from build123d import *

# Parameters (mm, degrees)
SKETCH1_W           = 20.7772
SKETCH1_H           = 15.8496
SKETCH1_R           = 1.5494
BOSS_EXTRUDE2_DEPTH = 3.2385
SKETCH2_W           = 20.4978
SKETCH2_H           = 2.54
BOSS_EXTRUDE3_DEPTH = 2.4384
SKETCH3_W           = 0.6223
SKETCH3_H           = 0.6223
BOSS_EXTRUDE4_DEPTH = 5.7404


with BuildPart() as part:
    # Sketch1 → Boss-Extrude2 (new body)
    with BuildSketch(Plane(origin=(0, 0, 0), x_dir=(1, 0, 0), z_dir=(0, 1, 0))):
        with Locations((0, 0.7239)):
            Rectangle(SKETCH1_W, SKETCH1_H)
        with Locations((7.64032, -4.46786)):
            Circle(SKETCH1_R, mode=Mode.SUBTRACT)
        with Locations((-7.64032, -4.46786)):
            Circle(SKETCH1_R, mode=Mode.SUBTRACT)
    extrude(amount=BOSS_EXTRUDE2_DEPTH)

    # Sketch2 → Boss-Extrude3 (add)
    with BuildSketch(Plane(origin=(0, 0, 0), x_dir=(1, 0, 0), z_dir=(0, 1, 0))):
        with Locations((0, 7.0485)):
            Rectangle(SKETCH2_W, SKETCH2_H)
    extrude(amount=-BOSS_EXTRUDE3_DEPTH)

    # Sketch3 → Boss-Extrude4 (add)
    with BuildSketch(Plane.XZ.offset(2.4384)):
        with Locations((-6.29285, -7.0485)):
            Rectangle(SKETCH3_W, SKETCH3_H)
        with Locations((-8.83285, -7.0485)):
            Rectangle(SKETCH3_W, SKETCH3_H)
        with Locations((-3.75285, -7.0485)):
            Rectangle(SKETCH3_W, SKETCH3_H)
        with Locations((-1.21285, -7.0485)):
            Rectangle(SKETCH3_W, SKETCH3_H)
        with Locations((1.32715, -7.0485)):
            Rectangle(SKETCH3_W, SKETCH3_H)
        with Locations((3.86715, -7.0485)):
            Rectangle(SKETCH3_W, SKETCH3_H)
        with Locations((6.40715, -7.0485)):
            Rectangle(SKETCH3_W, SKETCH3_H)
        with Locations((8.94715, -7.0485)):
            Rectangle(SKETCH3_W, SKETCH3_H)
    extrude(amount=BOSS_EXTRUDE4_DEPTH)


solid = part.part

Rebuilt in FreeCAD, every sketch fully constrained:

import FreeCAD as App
import Part
import Sketcher
from FreeCAD import Vector
Q = App.Units.Quantity

doc = App.newDocument("Part")
body = doc.addObject("PartDesign::Body", "Body")

# Sketch on XZ plane
sketch1 = doc.addObject("Sketcher::SketchObject", "Sketch")
body.addObject(sketch1)
sketch1.AttachmentSupport = (doc.XZ_Plane, [""])
sketch1.MapMode = "FlatFace"
sketch1.addGeometry(Part.LineSegment(Vector(-10.4, -8.6, 0), Vector(-10.4, 7.2, 0)), False)
sketch1.addGeometry(Part.LineSegment(Vector(-10.4, 7.2, 0), Vector(10.4, 7.2, 0)), False)
sketch1.addGeometry(Part.LineSegment(Vector(10.4, 7.2, 0), Vector(10.4, -8.6, 0)), False)
sketch1.addGeometry(Part.LineSegment(Vector(10.4, -8.6, 0), Vector(-10.4, -8.6, 0)), False)
sketch1.addGeometry(Part.Circle(Vector(-7.6, 4.5, 0), Vector(0, 0, 1), 1.5), False)
sketch1.addGeometry(Part.Circle(Vector(7.6, 4.5, 0), Vector(0, 0, 1), 1.5), False)
sketch1.addConstraint(Sketcher.Constraint("Coincident", 0, 2, 1, 1))
sketch1.addConstraint(Sketcher.Constraint("Coincident", 1, 2, 2, 1))
sketch1.addConstraint(Sketcher.Constraint("Coincident", 2, 2, 3, 1))
sketch1.addConstraint(Sketcher.Constraint("Coincident", 3, 2, 0, 1))
sketch1.addConstraint(Sketcher.Constraint("Vertical", 0))
sketch1.addConstraint(Sketcher.Constraint("Horizontal", 1))
sketch1.addConstraint(Sketcher.Constraint("Vertical", 2))
sketch1.addConstraint(Sketcher.Constraint("Horizontal", 3))
sketch1.addConstraint(Sketcher.Constraint("Equal", 4, 5))
sketch1.addConstraint(Sketcher.Constraint("Symmetric", 4, 3, 5, 3, -2))
sketch1.addConstraint(Sketcher.Constraint("Diameter", 4, Q("0.122 in")))
sketch1.addConstraint(Sketcher.Constraint("DistanceX", 1, 1, 1, 2, Q("0.818 in")))
sketch1.addConstraint(Sketcher.Constraint("DistanceY", 0, 1, 0, 2, Q("0.624 in")))
sketch1.addConstraint(Sketcher.Constraint("DistanceX", 0, 2, -1, 1, Q("0.409 in")))
sketch1.addConstraint(Sketcher.Constraint("DistanceX", 4, 3, -1, 1, Q("0.3008 in")))
sketch1.addConstraint(Sketcher.Constraint("DistanceY", -1, 1, 4, 3, Q("0.1759 in")))
sketch1.addConstraint(Sketcher.Constraint("DistanceY", -1, 1, 0, 2, Q("0.2835 in")))
pad1 = doc.addObject("PartDesign::Pad", "Pad")
body.addObject(pad1)
pad1.Profile = sketch1
pad1.Length = Q("0.1275 in")
pad1.Reversed = True

# Sketch on XZ plane
sketch2 = doc.addObject("Sketcher::SketchObject", "Sketch001")
body.addObject(sketch2)
sketch2.AttachmentSupport = (doc.XZ_Plane, [""])
sketch2.MapMode = "FlatFace"
sketch2.addGeometry(Part.LineSegment(Vector(-10.2, -8.3, 0), Vector(-10.2, -5.8, 0)), False)
sketch2.addGeometry(Part.LineSegment(Vector(-10.2, -5.8, 0), Vector(10.2, -5.8, 0)), False)
sketch2.addGeometry(Part.LineSegment(Vector(10.2, -5.8, 0), Vector(10.2, -8.3, 0)), False)
sketch2.addGeometry(Part.LineSegment(Vector(10.2, -8.3, 0), Vector(-10.2, -8.3, 0)), False)
sketch2.addConstraint(Sketcher.Constraint("Coincident", 0, 2, 1, 1))
sketch2.addConstraint(Sketcher.Constraint("Coincident", 1, 2, 2, 1))
sketch2.addConstraint(Sketcher.Constraint("Coincident", 2, 2, 3, 1))
sketch2.addConstraint(Sketcher.Constraint("Coincident", 3, 2, 0, 1))
sketch2.addConstraint(Sketcher.Constraint("Vertical", 0))
sketch2.addConstraint(Sketcher.Constraint("Horizontal", 1))
sketch2.addConstraint(Sketcher.Constraint("Vertical", 2))
sketch2.addConstraint(Sketcher.Constraint("Horizontal", 3))
sketch2.addConstraint(Sketcher.Constraint("DistanceY", 0, 1, 0, 2, Q("0.1 in")))
sketch2.addConstraint(Sketcher.Constraint("DistanceX", 1, 1, 1, 2, Q("0.807 in")))
sketch2.addConstraint(Sketcher.Constraint("DistanceX", 0, 2, -1, 1, Q("0.4035 in")))
sketch2.addConstraint(Sketcher.Constraint("DistanceY", 0, 2, -1, 1, Q("0.2275 in")))
pad2 = doc.addObject("PartDesign::Pad", "Pad001")
body.addObject(pad2)
pad2.Profile = sketch2
pad2.Length = Q("0.096 in")

# Sketch on XZ plane
sketch3 = doc.addObject("Sketcher::SketchObject", "Sketch002")
body.addObject(sketch3)
sketch3.AttachmentSupport = (doc.XZ_Plane, [""])
sketch3.MapMode = "FlatFace"
sketch3.AttachmentOffset = App.Placement(Vector(0, 0, 0.096 * 25.4), App.Rotation())
sketch3.addGeometry(Part.LineSegment(Vector(-6.6, -6.7, 0), Vector(-6.6, -7.4, 0)), False)
sketch3.addGeometry(Part.LineSegment(Vector(-6.6, -7.4, 0), Vector(-6, -7.4, 0)), False)
sketch3.addGeometry(Part.LineSegment(Vector(-6, -7.4, 0), Vector(-6, -6.7, 0)), False)
sketch3.addGeometry(Part.LineSegment(Vector(-6, -6.7, 0), Vector(-6.6, -6.7, 0)), False)
sketch3.addGeometry(Part.LineSegment(Vector(-9.1, -6.7, 0), Vector(-9.1, -7.4, 0)), False)
sketch3.addGeometry(Part.LineSegment(Vector(-9.1, -7.4, 0), Vector(-8.5, -7.4, 0)), False)
sketch3.addGeometry(Part.LineSegment(Vector(-8.5, -7.4, 0), Vector(-8.5, -6.7, 0)), False)
sketch3.addGeometry(Part.LineSegment(Vector(-8.5, -6.7, 0), Vector(-9.1, -6.7, 0)), False)
sketch3.addGeometry(Part.LineSegment(Vector(-4.1, -6.7, 0), Vector(-4.1, -7.4, 0)), False)
sketch3.addGeometry(Part.LineSegment(Vector(-4.1, -7.4, 0), Vector(-3.4, -7.4, 0)), False)
sketch3.addGeometry(Part.LineSegment(Vector(-3.4, -7.4, 0), Vector(-3.4, -6.7, 0)), False)
sketch3.addGeometry(Part.LineSegment(Vector(-3.4, -6.7, 0), Vector(-4.1, -6.7, 0)), False)
sketch3.addGeometry(Part.LineSegment(Vector(-1.5, -6.7, 0), Vector(-1.5, -7.4, 0)), False)
sketch3.addGeometry(Part.LineSegment(Vector(-1.5, -7.4, 0), Vector(-0.9, -7.4, 0)), False)
sketch3.addGeometry(Part.LineSegment(Vector(-0.9, -7.4, 0), Vector(-0.9, -6.7, 0)), False)
sketch3.addGeometry(Part.LineSegment(Vector(-0.9, -6.7, 0), Vector(-1.5, -6.7, 0)), False)
sketch3.addGeometry(Part.LineSegment(Vector(1, -6.7, 0), Vector(1, -7.4, 0)), False)
sketch3.addGeometry(Part.LineSegment(Vector(1, -7.4, 0), Vector(1.6, -7.4, 0)), False)
sketch3.addGeometry(Part.LineSegment(Vector(1.6, -7.4, 0), Vector(1.6, -6.7, 0)), False)
sketch3.addGeometry(Part.LineSegment(Vector(1.6, -6.7, 0), Vector(1, -6.7, 0)), False)
sketch3.addGeometry(Part.LineSegment(Vector(3.6, -6.7, 0), Vector(3.6, -7.4, 0)), False)
sketch3.addGeometry(Part.LineSegment(Vector(3.6, -7.4, 0), Vector(4.2, -7.4, 0)), False)
sketch3.addGeometry(Part.LineSegment(Vector(4.2, -7.4, 0), Vector(4.2, -6.7, 0)), False)
sketch3.addGeometry(Part.LineSegment(Vector(4.2, -6.7, 0), Vector(3.6, -6.7, 0)), False)
sketch3.addGeometry(Part.LineSegment(Vector(6.1, -6.7, 0), Vector(6.1, -7.4, 0)), False)
sketch3.addGeometry(Part.LineSegment(Vector(6.1, -7.4, 0), Vector(6.7, -7.4, 0)), False)
sketch3.addGeometry(Part.LineSegment(Vector(6.7, -7.4, 0), Vector(6.7, -6.7, 0)), False)
sketch3.addGeometry(Part.LineSegment(Vector(6.7, -6.7, 0), Vector(6.1, -6.7, 0)), False)
sketch3.addGeometry(Part.LineSegment(Vector(8.6, -6.7, 0), Vector(8.6, -7.4, 0)), False)
sketch3.addGeometry(Part.LineSegment(Vector(8.6, -7.4, 0), Vector(9.3, -7.4, 0)), False)
sketch3.addGeometry(Part.LineSegment(Vector(9.3, -7.4, 0), Vector(9.3, -6.7, 0)), False)
sketch3.addGeometry(Part.LineSegment(Vector(9.3, -6.7, 0), Vector(8.6, -6.7, 0)), False)
sketch3.addConstraint(Sketcher.Constraint("Coincident", 0, 2, 1, 1))
sketch3.addConstraint(Sketcher.Constraint("Coincident", 1, 2, 2, 1))
sketch3.addConstraint(Sketcher.Constraint("Coincident", 2, 2, 3, 1))
sketch3.addConstraint(Sketcher.Constraint("Coincident", 3, 2, 0, 1))
sketch3.addConstraint(Sketcher.Constraint("Coincident", 4, 2, 5, 1))
sketch3.addConstraint(Sketcher.Constraint("Coincident", 5, 2, 6, 1))
sketch3.addConstraint(Sketcher.Constraint("Coincident", 6, 2, 7, 1))
sketch3.addConstraint(Sketcher.Constraint("Coincident", 7, 2, 4, 1))
sketch3.addConstraint(Sketcher.Constraint("Coincident", 8, 2, 9, 1))
sketch3.addConstraint(Sketcher.Constraint("Coincident", 9, 2, 10, 1))
sketch3.addConstraint(Sketcher.Constraint("Coincident", 10, 2, 11, 1))
sketch3.addConstraint(Sketcher.Constraint("Coincident", 11, 2, 8, 1))
sketch3.addConstraint(Sketcher.Constraint("Coincident", 12, 2, 13, 1))
sketch3.addConstraint(Sketcher.Constraint("Coincident", 13, 2, 14, 1))
sketch3.addConstraint(Sketcher.Constraint("Coincident", 14, 2, 15, 1))
sketch3.addConstraint(Sketcher.Constraint("Coincident", 15, 2, 12, 1))
sketch3.addConstraint(Sketcher.Constraint("Coincident", 16, 2, 17, 1))
sketch3.addConstraint(Sketcher.Constraint("Coincident", 17, 2, 18, 1))
sketch3.addConstraint(Sketcher.Constraint("Coincident", 18, 2, 19, 1))
sketch3.addConstraint(Sketcher.Constraint("Coincident", 19, 2, 16, 1))
sketch3.addConstraint(Sketcher.Constraint("Coincident", 20, 2, 21, 1))
sketch3.addConstraint(Sketcher.Constraint("Coincident", 21, 2, 22, 1))
sketch3.addConstraint(Sketcher.Constraint("Coincident", 22, 2, 23, 1))
sketch3.addConstraint(Sketcher.Constraint("Coincident", 23, 2, 20, 1))
sketch3.addConstraint(Sketcher.Constraint("Coincident", 24, 2, 25, 1))
sketch3.addConstraint(Sketcher.Constraint("Coincident", 25, 2, 26, 1))
sketch3.addConstraint(Sketcher.Constraint("Coincident", 26, 2, 27, 1))
sketch3.addConstraint(Sketcher.Constraint("Coincident", 27, 2, 24, 1))
sketch3.addConstraint(Sketcher.Constraint("Coincident", 28, 2, 29, 1))
sketch3.addConstraint(Sketcher.Constraint("Coincident", 29, 2, 30, 1))
sketch3.addConstraint(Sketcher.Constraint("Coincident", 30, 2, 31, 1))
sketch3.addConstraint(Sketcher.Constraint("Coincident", 31, 2, 28, 1))
sketch3.addConstraint(Sketcher.Constraint("Vertical", 0))
sketch3.addConstraint(Sketcher.Constraint("Horizontal", 1))
sketch3.addConstraint(Sketcher.Constraint("Vertical", 2))
sketch3.addConstraint(Sketcher.Constraint("Horizontal", 3))
sketch3.addConstraint(Sketcher.Constraint("Vertical", 4))
sketch3.addConstraint(Sketcher.Constraint("Horizontal", 5))
sketch3.addConstraint(Sketcher.Constraint("Vertical", 6))
sketch3.addConstraint(Sketcher.Constraint("Horizontal", 7))
sketch3.addConstraint(Sketcher.Constraint("Vertical", 8))
sketch3.addConstraint(Sketcher.Constraint("Horizontal", 9))
sketch3.addConstraint(Sketcher.Constraint("Vertical", 10))
sketch3.addConstraint(Sketcher.Constraint("Horizontal", 11))
sketch3.addConstraint(Sketcher.Constraint("Vertical", 12))
sketch3.addConstraint(Sketcher.Constraint("Horizontal", 13))
sketch3.addConstraint(Sketcher.Constraint("Vertical", 14))
sketch3.addConstraint(Sketcher.Constraint("Horizontal", 15))
sketch3.addConstraint(Sketcher.Constraint("Vertical", 16))
sketch3.addConstraint(Sketcher.Constraint("Horizontal", 17))
sketch3.addConstraint(Sketcher.Constraint("Vertical", 18))
sketch3.addConstraint(Sketcher.Constraint("Horizontal", 19))
sketch3.addConstraint(Sketcher.Constraint("Vertical", 20))
sketch3.addConstraint(Sketcher.Constraint("Horizontal", 21))
sketch3.addConstraint(Sketcher.Constraint("Vertical", 22))
sketch3.addConstraint(Sketcher.Constraint("Horizontal", 23))
sketch3.addConstraint(Sketcher.Constraint("Vertical", 24))
sketch3.addConstraint(Sketcher.Constraint("Horizontal", 25))
sketch3.addConstraint(Sketcher.Constraint("Vertical", 26))
sketch3.addConstraint(Sketcher.Constraint("Horizontal", 27))
sketch3.addConstraint(Sketcher.Constraint("Vertical", 28))
sketch3.addConstraint(Sketcher.Constraint("Horizontal", 29))
sketch3.addConstraint(Sketcher.Constraint("Vertical", 30))
sketch3.addConstraint(Sketcher.Constraint("Horizontal", 31))
sketch3.addConstraint(Sketcher.Constraint("Horizontal", 1, 2, 4, 2))
sketch3.addConstraint(Sketcher.Constraint("Horizontal", 3, 2, 6, 2))
sketch3.addConstraint(Sketcher.Constraint("Horizontal", 5, 2, 8, 2))
sketch3.addConstraint(Sketcher.Constraint("Horizontal", 7, 2, 10, 2))
sketch3.addConstraint(Sketcher.Constraint("Horizontal", 9, 2, 12, 2))
sketch3.addConstraint(Sketcher.Constraint("Horizontal", 11, 2, 14, 2))
sketch3.addConstraint(Sketcher.Constraint("Horizontal", 13, 2, 16, 2))
sketch3.addConstraint(Sketcher.Constraint("Horizontal", 15, 2, 18, 2))
sketch3.addConstraint(Sketcher.Constraint("Horizontal", 17, 2, 20, 2))
sketch3.addConstraint(Sketcher.Constraint("Horizontal", 19, 2, 22, 2))
sketch3.addConstraint(Sketcher.Constraint("Horizontal", 21, 2, 24, 2))
sketch3.addConstraint(Sketcher.Constraint("Horizontal", 23, 2, 26, 2))
sketch3.addConstraint(Sketcher.Constraint("Horizontal", 25, 2, 28, 2))
sketch3.addConstraint(Sketcher.Constraint("Horizontal", 27, 2, 30, 2))
sketch3.addConstraint(Sketcher.Constraint("Equal", 3, 5))
sketch3.addConstraint(Sketcher.Constraint("Equal", 7, 9))
sketch3.addConstraint(Sketcher.Constraint("Equal", 11, 13))
sketch3.addConstraint(Sketcher.Constraint("Equal", 15, 17))
sketch3.addConstraint(Sketcher.Constraint("Equal", 19, 21))
sketch3.addConstraint(Sketcher.Constraint("Equal", 23, 25))
sketch3.addConstraint(Sketcher.Constraint("Equal", 27, 29))
sketch3.addConstraint(Sketcher.Constraint("Equal", 31, 0))
sketch3.addConstraint(Sketcher.Constraint("DistanceX", 4, 2, 0, 2, Q("0.1 in")))
sketch3.addConstraint(Sketcher.Constraint("DistanceX", 0, 2, 8, 2, Q("0.1 in")))
sketch3.addConstraint(Sketcher.Constraint("DistanceX", 8, 2, 12, 2, Q("0.1 in")))
sketch3.addConstraint(Sketcher.Constraint("DistanceX", 12, 2, 16, 2, Q("0.1 in")))
sketch3.addConstraint(Sketcher.Constraint("DistanceX", 16, 2, 20, 2, Q("0.1 in")))
sketch3.addConstraint(Sketcher.Constraint("DistanceX", 20, 2, 24, 2, Q("0.1 in")))
sketch3.addConstraint(Sketcher.Constraint("DistanceX", 24, 2, 28, 2, Q("0.1 in")))
sketch3.addConstraint(Sketcher.Constraint("DistanceX", 0, 2, -1, 1, Q("0.26 in")))
sketch3.addConstraint(Sketcher.Constraint("DistanceX", 1, 1, 1, 2, Q("0.0245 in")))
sketch3.addConstraint(Sketcher.Constraint("DistanceY", 0, 2, -1, 1, 7.35965))
pad3 = doc.addObject("PartDesign::Pad", "Pad002")
body.addObject(pad3)
pad3.Profile = sketch3
pad3.Length = Q("0.226 in")

doc.recompute()
